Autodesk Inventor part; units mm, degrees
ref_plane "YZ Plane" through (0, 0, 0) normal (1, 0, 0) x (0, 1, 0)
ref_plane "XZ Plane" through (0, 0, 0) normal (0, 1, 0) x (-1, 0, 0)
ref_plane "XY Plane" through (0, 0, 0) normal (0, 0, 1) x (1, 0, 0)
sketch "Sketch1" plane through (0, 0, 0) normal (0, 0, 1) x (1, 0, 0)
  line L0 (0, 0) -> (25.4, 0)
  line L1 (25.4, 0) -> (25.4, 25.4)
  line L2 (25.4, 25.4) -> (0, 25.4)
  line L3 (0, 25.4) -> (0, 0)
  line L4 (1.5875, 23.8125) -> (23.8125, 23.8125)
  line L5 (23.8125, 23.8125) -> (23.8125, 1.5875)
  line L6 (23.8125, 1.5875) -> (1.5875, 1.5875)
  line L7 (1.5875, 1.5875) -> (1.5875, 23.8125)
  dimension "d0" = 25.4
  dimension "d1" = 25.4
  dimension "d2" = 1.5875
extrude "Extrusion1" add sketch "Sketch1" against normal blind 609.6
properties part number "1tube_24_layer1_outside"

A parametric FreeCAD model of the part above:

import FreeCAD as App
import Part
import Sketcher
from FreeCAD import Vector
Q = App.Units.Quantity


def add_polygon(sketch, points):
    """Adds a closed chain of lines whose ends are joined by coincident constraints."""
    first, n = sketch.GeometryCount, len(points)
    for a, b in zip(points, points[1:] + points[:1]):
        sketch.addGeometry(Part.LineSegment(App.Vector(*a, 0), App.Vector(*b, 0)), False)
    for i in range(n):
        sketch.addConstraint(Sketcher.Constraint("Coincident", first + i, 2, first + (i + 1) % n, 1))

doc = App.newDocument("Part")
body = doc.addObject("PartDesign::Body", "Body")

sketch1 = body.newObject("Sketcher::SketchObject", "Sketch")
sketch1.AttachmentSupport = (doc.getObject("XY_Plane"), [""])
sketch1.MapMode = "FlatFace"
add_polygon(sketch1, [(0, 25.4), (0, 0), (25.4, 0), (25.4, 25.4)])
add_polygon(sketch1, [(1.5875, 1.5875), (1.5875, 23.8125), (23.8125, 23.8125), (23.8125, 1.5875)])
sketch1.addConstraint(Sketcher.Constraint("Vertical", 0))
sketch1.addConstraint(Sketcher.Constraint("Horizontal", 1))
sketch1.addConstraint(Sketcher.Constraint("Vertical", 2))
sketch1.addConstraint(Sketcher.Constraint("Horizontal", 3))
sketch1.addConstraint(Sketcher.Constraint("Vertical", 4))
sketch1.addConstraint(Sketcher.Constraint("Horizontal", 5))
sketch1.addConstraint(Sketcher.Constraint("Vertical", 6))
sketch1.addConstraint(Sketcher.Constraint("Horizontal", 7))
sketch1.addConstraint(Sketcher.Constraint("Coincident", 0, 2, -1, 1))
sketch1.addConstraint(Sketcher.Constraint("Equal", 3, 0))
sketch1.addConstraint(Sketcher.Constraint("Equal", 7, 4))
sketch1.addConstraint(Sketcher.Constraint("DistanceX", 1, 1, 1, 2, Q("1 in")))
sketch1.addConstraint(Sketcher.Constraint("DistanceX", -1, 1, 4, 2, Q("0.0625 in")))
sketch1.addConstraint(Sketcher.Constraint("DistanceY", -1, 1, 6, 2, Q("0.0625 in")))
sketch1.addConstraint(Sketcher.Constraint("DistanceY", 4, 2, 3, 2, Q("0.0625 in")))
pad1 = body.newObject("PartDesign::Pad", "Pad")
pad1.Profile = sketch1
pad1.Length = Q("24 in")
pad1.Reversed = True

doc.recompute()
